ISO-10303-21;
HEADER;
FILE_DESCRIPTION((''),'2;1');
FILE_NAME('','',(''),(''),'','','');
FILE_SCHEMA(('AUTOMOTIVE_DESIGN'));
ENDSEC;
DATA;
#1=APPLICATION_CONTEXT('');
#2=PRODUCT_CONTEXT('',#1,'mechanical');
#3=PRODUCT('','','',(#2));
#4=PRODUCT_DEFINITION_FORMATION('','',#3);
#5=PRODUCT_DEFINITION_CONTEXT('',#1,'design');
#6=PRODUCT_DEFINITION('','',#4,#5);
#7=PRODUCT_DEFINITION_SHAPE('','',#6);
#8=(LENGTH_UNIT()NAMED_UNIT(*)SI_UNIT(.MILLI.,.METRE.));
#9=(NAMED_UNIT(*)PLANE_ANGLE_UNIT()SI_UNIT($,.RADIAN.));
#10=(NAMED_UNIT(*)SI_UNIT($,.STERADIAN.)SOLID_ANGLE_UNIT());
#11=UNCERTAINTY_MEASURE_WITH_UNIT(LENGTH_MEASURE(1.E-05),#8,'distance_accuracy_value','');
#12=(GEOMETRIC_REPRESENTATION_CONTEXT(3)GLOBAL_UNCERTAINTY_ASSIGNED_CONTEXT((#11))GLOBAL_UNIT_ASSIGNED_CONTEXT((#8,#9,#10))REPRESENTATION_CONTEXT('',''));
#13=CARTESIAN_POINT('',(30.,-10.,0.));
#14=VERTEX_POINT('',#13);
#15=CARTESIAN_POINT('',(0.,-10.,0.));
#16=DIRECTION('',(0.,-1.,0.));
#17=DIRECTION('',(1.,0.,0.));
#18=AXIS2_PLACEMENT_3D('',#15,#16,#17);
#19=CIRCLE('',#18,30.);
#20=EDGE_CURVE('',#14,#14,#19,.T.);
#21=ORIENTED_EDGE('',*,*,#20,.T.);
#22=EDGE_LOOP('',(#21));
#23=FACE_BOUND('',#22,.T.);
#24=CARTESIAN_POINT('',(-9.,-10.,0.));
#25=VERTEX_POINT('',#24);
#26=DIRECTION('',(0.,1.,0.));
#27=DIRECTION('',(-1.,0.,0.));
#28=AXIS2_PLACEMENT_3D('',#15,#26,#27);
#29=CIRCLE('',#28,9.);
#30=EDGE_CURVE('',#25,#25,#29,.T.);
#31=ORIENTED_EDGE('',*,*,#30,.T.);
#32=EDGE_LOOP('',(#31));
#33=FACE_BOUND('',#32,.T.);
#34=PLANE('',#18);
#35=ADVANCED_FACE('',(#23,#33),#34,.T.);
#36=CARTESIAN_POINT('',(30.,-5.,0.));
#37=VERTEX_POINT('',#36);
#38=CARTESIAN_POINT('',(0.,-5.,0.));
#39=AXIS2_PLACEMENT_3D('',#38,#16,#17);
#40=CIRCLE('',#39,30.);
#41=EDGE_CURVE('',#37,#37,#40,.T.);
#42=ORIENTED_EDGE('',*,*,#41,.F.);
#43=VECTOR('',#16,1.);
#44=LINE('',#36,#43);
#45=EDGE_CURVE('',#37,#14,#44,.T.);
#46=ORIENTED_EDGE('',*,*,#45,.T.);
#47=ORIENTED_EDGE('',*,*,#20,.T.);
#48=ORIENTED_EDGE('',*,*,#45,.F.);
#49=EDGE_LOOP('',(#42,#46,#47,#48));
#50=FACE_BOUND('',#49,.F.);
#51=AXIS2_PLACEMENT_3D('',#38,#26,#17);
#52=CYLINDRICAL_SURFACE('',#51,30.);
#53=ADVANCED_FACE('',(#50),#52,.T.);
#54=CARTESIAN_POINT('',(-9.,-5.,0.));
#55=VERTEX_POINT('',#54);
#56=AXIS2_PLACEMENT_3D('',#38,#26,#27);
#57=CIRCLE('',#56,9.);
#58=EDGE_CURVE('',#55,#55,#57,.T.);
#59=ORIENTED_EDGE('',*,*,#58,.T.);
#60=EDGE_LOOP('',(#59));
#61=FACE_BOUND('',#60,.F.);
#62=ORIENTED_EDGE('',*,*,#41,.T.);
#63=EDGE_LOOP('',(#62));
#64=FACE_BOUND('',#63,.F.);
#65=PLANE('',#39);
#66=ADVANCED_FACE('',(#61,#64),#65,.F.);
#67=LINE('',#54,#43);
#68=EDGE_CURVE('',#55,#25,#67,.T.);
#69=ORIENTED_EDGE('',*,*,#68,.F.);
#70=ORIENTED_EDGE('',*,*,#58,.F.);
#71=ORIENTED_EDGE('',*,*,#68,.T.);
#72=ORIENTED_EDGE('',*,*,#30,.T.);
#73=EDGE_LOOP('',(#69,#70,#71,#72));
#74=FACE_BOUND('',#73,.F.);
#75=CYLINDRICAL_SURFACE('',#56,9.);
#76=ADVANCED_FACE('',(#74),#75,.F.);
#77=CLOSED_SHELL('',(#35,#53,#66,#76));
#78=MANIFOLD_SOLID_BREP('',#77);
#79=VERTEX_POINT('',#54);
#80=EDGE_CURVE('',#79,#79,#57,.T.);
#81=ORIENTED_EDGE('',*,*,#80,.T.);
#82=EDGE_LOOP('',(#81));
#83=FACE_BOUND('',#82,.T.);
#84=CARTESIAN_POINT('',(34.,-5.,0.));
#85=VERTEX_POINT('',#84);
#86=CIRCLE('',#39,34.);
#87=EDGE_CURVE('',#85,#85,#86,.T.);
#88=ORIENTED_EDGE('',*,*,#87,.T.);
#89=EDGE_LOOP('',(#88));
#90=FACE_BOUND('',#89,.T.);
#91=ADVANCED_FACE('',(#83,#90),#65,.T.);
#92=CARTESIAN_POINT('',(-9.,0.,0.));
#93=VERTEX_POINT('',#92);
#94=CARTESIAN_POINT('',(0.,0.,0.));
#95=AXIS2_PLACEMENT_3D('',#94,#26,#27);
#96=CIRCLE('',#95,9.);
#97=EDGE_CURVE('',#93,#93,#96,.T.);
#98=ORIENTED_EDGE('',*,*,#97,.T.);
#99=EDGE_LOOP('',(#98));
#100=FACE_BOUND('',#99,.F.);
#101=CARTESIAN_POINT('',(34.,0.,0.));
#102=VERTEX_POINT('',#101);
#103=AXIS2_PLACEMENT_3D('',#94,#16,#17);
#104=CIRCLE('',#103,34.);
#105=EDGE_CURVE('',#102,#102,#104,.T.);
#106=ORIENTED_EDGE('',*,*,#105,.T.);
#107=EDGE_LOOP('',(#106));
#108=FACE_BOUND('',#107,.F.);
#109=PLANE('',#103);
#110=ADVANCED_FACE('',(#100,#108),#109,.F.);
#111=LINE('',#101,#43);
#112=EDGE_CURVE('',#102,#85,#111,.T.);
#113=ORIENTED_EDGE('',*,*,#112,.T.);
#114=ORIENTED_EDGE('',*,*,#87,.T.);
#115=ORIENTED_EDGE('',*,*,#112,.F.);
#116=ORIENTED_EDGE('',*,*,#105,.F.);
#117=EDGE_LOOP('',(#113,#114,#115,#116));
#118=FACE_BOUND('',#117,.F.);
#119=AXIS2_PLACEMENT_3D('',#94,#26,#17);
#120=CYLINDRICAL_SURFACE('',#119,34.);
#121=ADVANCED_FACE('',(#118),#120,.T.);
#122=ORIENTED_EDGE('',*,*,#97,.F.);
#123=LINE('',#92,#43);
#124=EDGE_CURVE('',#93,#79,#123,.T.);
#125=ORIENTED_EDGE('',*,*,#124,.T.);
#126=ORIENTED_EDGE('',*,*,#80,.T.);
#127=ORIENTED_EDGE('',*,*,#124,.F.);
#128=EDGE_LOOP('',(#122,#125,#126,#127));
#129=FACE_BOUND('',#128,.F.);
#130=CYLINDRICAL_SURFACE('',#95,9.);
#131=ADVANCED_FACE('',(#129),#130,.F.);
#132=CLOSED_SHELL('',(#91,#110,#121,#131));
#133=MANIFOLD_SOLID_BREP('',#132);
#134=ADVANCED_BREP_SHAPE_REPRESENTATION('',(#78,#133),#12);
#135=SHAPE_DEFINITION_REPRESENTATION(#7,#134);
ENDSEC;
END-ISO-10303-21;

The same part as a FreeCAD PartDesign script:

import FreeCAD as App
import Part
import Sketcher

V = App.Vector

doc = App.newDocument("Part")
body = doc.addObject("PartDesign::Body", "Body")

# Sketch on XZ plane
sketch1 = doc.addObject("Sketcher::SketchObject", "Sketch")
body.addObject(sketch1)
sketch1.AttachmentSupport = (doc.XZ_Plane, [""])
sketch1.MapMode = "FlatFace"
sketch1.addGeometry(Part.Circle(V(0, 0, 0), V(0, 0, 1), 34), False)
sketch1.addConstraint([
    Sketcher.Constraint("Coincident", 0, 3, -1, 1),
    Sketcher.Constraint("Diameter", 0, 68.0),
])
pad1 = doc.addObject("PartDesign::Pad", "Pad")
body.addObject(pad1)
pad1.Profile = sketch1
pad1.Length = 5

# Sketch on XZ plane
sketch2 = doc.addObject("Sketcher::SketchObject", "Sketch001")
body.addObject(sketch2)
sketch2.AttachmentSupport = (doc.XZ_Plane, [""])
sketch2.MapMode = "FlatFace"
sketch2.addGeometry(Part.Circle(V(0, 0, 0), V(0, 0, 1), 9), False)
sketch2.addConstraint([
    Sketcher.Constraint("Coincident", 0, 3, -1, 1),
    Sketcher.Constraint("Diameter", 0, 18.0),
])
pocket1 = doc.addObject("PartDesign::Pocket", "Pocket")
body.addObject(pocket1)
pocket1.Profile = sketch2
pocket1.Length = 25
pocket1.Reversed = True
body2 = doc.addObject("PartDesign::Body", "Body001")

# Sketch on XZ plane
sketch3 = doc.addObject("Sketcher::SketchObject", "Sketch002")
body2.addObject(sketch3)
sketch3.AttachmentSupport = (doc.getObject("XZ_Plane001"), [""])
sketch3.MapMode = "FlatFace"
sketch3.AttachmentOffset = App.Placement(V(0, 0, 5), App.Rotation())
sketch3.addGeometry(Part.Circle(V(0, 0, 0), V(0, 0, 1), 30), False)
sketch3.addConstraint([
    Sketcher.Constraint("Coincident", 0, 3, -1, 1),
    Sketcher.Constraint("Diameter", 0, 60.0),
])
pad2 = doc.addObject("PartDesign::Pad", "Pad001")
body2.addObject(pad2)
pad2.Profile = sketch3
pad2.Length = 5

# Sketch on XZ plane
sketch4 = doc.addObject("Sketcher::SketchObject", "Sketch003")
body2.addObject(sketch4)
sketch4.AttachmentSupport = (doc.getObject("XZ_Plane001"), [""])
sketch4.MapMode = "FlatFace"
sketch4.AttachmentOffset = App.Placement(V(0, 0, 5), App.Rotation())
sketch4.addGeometry(Part.Circle(V(0, 0, 0), V(0, 0, 1), 9), False)
sketch4.addConstraint([
    Sketcher.Constraint("Coincident", 0, 3, -1, 1),
    Sketcher.Constraint("Diameter", 0, 18.0),
])
pocket2 = doc.addObject("PartDesign::Pocket", "Pocket001")
body2.addObject(pocket2)
pocket2.Profile = sketch4
pocket2.Length = 56.2
pocket2.Reversed = True

doc.recompute()
